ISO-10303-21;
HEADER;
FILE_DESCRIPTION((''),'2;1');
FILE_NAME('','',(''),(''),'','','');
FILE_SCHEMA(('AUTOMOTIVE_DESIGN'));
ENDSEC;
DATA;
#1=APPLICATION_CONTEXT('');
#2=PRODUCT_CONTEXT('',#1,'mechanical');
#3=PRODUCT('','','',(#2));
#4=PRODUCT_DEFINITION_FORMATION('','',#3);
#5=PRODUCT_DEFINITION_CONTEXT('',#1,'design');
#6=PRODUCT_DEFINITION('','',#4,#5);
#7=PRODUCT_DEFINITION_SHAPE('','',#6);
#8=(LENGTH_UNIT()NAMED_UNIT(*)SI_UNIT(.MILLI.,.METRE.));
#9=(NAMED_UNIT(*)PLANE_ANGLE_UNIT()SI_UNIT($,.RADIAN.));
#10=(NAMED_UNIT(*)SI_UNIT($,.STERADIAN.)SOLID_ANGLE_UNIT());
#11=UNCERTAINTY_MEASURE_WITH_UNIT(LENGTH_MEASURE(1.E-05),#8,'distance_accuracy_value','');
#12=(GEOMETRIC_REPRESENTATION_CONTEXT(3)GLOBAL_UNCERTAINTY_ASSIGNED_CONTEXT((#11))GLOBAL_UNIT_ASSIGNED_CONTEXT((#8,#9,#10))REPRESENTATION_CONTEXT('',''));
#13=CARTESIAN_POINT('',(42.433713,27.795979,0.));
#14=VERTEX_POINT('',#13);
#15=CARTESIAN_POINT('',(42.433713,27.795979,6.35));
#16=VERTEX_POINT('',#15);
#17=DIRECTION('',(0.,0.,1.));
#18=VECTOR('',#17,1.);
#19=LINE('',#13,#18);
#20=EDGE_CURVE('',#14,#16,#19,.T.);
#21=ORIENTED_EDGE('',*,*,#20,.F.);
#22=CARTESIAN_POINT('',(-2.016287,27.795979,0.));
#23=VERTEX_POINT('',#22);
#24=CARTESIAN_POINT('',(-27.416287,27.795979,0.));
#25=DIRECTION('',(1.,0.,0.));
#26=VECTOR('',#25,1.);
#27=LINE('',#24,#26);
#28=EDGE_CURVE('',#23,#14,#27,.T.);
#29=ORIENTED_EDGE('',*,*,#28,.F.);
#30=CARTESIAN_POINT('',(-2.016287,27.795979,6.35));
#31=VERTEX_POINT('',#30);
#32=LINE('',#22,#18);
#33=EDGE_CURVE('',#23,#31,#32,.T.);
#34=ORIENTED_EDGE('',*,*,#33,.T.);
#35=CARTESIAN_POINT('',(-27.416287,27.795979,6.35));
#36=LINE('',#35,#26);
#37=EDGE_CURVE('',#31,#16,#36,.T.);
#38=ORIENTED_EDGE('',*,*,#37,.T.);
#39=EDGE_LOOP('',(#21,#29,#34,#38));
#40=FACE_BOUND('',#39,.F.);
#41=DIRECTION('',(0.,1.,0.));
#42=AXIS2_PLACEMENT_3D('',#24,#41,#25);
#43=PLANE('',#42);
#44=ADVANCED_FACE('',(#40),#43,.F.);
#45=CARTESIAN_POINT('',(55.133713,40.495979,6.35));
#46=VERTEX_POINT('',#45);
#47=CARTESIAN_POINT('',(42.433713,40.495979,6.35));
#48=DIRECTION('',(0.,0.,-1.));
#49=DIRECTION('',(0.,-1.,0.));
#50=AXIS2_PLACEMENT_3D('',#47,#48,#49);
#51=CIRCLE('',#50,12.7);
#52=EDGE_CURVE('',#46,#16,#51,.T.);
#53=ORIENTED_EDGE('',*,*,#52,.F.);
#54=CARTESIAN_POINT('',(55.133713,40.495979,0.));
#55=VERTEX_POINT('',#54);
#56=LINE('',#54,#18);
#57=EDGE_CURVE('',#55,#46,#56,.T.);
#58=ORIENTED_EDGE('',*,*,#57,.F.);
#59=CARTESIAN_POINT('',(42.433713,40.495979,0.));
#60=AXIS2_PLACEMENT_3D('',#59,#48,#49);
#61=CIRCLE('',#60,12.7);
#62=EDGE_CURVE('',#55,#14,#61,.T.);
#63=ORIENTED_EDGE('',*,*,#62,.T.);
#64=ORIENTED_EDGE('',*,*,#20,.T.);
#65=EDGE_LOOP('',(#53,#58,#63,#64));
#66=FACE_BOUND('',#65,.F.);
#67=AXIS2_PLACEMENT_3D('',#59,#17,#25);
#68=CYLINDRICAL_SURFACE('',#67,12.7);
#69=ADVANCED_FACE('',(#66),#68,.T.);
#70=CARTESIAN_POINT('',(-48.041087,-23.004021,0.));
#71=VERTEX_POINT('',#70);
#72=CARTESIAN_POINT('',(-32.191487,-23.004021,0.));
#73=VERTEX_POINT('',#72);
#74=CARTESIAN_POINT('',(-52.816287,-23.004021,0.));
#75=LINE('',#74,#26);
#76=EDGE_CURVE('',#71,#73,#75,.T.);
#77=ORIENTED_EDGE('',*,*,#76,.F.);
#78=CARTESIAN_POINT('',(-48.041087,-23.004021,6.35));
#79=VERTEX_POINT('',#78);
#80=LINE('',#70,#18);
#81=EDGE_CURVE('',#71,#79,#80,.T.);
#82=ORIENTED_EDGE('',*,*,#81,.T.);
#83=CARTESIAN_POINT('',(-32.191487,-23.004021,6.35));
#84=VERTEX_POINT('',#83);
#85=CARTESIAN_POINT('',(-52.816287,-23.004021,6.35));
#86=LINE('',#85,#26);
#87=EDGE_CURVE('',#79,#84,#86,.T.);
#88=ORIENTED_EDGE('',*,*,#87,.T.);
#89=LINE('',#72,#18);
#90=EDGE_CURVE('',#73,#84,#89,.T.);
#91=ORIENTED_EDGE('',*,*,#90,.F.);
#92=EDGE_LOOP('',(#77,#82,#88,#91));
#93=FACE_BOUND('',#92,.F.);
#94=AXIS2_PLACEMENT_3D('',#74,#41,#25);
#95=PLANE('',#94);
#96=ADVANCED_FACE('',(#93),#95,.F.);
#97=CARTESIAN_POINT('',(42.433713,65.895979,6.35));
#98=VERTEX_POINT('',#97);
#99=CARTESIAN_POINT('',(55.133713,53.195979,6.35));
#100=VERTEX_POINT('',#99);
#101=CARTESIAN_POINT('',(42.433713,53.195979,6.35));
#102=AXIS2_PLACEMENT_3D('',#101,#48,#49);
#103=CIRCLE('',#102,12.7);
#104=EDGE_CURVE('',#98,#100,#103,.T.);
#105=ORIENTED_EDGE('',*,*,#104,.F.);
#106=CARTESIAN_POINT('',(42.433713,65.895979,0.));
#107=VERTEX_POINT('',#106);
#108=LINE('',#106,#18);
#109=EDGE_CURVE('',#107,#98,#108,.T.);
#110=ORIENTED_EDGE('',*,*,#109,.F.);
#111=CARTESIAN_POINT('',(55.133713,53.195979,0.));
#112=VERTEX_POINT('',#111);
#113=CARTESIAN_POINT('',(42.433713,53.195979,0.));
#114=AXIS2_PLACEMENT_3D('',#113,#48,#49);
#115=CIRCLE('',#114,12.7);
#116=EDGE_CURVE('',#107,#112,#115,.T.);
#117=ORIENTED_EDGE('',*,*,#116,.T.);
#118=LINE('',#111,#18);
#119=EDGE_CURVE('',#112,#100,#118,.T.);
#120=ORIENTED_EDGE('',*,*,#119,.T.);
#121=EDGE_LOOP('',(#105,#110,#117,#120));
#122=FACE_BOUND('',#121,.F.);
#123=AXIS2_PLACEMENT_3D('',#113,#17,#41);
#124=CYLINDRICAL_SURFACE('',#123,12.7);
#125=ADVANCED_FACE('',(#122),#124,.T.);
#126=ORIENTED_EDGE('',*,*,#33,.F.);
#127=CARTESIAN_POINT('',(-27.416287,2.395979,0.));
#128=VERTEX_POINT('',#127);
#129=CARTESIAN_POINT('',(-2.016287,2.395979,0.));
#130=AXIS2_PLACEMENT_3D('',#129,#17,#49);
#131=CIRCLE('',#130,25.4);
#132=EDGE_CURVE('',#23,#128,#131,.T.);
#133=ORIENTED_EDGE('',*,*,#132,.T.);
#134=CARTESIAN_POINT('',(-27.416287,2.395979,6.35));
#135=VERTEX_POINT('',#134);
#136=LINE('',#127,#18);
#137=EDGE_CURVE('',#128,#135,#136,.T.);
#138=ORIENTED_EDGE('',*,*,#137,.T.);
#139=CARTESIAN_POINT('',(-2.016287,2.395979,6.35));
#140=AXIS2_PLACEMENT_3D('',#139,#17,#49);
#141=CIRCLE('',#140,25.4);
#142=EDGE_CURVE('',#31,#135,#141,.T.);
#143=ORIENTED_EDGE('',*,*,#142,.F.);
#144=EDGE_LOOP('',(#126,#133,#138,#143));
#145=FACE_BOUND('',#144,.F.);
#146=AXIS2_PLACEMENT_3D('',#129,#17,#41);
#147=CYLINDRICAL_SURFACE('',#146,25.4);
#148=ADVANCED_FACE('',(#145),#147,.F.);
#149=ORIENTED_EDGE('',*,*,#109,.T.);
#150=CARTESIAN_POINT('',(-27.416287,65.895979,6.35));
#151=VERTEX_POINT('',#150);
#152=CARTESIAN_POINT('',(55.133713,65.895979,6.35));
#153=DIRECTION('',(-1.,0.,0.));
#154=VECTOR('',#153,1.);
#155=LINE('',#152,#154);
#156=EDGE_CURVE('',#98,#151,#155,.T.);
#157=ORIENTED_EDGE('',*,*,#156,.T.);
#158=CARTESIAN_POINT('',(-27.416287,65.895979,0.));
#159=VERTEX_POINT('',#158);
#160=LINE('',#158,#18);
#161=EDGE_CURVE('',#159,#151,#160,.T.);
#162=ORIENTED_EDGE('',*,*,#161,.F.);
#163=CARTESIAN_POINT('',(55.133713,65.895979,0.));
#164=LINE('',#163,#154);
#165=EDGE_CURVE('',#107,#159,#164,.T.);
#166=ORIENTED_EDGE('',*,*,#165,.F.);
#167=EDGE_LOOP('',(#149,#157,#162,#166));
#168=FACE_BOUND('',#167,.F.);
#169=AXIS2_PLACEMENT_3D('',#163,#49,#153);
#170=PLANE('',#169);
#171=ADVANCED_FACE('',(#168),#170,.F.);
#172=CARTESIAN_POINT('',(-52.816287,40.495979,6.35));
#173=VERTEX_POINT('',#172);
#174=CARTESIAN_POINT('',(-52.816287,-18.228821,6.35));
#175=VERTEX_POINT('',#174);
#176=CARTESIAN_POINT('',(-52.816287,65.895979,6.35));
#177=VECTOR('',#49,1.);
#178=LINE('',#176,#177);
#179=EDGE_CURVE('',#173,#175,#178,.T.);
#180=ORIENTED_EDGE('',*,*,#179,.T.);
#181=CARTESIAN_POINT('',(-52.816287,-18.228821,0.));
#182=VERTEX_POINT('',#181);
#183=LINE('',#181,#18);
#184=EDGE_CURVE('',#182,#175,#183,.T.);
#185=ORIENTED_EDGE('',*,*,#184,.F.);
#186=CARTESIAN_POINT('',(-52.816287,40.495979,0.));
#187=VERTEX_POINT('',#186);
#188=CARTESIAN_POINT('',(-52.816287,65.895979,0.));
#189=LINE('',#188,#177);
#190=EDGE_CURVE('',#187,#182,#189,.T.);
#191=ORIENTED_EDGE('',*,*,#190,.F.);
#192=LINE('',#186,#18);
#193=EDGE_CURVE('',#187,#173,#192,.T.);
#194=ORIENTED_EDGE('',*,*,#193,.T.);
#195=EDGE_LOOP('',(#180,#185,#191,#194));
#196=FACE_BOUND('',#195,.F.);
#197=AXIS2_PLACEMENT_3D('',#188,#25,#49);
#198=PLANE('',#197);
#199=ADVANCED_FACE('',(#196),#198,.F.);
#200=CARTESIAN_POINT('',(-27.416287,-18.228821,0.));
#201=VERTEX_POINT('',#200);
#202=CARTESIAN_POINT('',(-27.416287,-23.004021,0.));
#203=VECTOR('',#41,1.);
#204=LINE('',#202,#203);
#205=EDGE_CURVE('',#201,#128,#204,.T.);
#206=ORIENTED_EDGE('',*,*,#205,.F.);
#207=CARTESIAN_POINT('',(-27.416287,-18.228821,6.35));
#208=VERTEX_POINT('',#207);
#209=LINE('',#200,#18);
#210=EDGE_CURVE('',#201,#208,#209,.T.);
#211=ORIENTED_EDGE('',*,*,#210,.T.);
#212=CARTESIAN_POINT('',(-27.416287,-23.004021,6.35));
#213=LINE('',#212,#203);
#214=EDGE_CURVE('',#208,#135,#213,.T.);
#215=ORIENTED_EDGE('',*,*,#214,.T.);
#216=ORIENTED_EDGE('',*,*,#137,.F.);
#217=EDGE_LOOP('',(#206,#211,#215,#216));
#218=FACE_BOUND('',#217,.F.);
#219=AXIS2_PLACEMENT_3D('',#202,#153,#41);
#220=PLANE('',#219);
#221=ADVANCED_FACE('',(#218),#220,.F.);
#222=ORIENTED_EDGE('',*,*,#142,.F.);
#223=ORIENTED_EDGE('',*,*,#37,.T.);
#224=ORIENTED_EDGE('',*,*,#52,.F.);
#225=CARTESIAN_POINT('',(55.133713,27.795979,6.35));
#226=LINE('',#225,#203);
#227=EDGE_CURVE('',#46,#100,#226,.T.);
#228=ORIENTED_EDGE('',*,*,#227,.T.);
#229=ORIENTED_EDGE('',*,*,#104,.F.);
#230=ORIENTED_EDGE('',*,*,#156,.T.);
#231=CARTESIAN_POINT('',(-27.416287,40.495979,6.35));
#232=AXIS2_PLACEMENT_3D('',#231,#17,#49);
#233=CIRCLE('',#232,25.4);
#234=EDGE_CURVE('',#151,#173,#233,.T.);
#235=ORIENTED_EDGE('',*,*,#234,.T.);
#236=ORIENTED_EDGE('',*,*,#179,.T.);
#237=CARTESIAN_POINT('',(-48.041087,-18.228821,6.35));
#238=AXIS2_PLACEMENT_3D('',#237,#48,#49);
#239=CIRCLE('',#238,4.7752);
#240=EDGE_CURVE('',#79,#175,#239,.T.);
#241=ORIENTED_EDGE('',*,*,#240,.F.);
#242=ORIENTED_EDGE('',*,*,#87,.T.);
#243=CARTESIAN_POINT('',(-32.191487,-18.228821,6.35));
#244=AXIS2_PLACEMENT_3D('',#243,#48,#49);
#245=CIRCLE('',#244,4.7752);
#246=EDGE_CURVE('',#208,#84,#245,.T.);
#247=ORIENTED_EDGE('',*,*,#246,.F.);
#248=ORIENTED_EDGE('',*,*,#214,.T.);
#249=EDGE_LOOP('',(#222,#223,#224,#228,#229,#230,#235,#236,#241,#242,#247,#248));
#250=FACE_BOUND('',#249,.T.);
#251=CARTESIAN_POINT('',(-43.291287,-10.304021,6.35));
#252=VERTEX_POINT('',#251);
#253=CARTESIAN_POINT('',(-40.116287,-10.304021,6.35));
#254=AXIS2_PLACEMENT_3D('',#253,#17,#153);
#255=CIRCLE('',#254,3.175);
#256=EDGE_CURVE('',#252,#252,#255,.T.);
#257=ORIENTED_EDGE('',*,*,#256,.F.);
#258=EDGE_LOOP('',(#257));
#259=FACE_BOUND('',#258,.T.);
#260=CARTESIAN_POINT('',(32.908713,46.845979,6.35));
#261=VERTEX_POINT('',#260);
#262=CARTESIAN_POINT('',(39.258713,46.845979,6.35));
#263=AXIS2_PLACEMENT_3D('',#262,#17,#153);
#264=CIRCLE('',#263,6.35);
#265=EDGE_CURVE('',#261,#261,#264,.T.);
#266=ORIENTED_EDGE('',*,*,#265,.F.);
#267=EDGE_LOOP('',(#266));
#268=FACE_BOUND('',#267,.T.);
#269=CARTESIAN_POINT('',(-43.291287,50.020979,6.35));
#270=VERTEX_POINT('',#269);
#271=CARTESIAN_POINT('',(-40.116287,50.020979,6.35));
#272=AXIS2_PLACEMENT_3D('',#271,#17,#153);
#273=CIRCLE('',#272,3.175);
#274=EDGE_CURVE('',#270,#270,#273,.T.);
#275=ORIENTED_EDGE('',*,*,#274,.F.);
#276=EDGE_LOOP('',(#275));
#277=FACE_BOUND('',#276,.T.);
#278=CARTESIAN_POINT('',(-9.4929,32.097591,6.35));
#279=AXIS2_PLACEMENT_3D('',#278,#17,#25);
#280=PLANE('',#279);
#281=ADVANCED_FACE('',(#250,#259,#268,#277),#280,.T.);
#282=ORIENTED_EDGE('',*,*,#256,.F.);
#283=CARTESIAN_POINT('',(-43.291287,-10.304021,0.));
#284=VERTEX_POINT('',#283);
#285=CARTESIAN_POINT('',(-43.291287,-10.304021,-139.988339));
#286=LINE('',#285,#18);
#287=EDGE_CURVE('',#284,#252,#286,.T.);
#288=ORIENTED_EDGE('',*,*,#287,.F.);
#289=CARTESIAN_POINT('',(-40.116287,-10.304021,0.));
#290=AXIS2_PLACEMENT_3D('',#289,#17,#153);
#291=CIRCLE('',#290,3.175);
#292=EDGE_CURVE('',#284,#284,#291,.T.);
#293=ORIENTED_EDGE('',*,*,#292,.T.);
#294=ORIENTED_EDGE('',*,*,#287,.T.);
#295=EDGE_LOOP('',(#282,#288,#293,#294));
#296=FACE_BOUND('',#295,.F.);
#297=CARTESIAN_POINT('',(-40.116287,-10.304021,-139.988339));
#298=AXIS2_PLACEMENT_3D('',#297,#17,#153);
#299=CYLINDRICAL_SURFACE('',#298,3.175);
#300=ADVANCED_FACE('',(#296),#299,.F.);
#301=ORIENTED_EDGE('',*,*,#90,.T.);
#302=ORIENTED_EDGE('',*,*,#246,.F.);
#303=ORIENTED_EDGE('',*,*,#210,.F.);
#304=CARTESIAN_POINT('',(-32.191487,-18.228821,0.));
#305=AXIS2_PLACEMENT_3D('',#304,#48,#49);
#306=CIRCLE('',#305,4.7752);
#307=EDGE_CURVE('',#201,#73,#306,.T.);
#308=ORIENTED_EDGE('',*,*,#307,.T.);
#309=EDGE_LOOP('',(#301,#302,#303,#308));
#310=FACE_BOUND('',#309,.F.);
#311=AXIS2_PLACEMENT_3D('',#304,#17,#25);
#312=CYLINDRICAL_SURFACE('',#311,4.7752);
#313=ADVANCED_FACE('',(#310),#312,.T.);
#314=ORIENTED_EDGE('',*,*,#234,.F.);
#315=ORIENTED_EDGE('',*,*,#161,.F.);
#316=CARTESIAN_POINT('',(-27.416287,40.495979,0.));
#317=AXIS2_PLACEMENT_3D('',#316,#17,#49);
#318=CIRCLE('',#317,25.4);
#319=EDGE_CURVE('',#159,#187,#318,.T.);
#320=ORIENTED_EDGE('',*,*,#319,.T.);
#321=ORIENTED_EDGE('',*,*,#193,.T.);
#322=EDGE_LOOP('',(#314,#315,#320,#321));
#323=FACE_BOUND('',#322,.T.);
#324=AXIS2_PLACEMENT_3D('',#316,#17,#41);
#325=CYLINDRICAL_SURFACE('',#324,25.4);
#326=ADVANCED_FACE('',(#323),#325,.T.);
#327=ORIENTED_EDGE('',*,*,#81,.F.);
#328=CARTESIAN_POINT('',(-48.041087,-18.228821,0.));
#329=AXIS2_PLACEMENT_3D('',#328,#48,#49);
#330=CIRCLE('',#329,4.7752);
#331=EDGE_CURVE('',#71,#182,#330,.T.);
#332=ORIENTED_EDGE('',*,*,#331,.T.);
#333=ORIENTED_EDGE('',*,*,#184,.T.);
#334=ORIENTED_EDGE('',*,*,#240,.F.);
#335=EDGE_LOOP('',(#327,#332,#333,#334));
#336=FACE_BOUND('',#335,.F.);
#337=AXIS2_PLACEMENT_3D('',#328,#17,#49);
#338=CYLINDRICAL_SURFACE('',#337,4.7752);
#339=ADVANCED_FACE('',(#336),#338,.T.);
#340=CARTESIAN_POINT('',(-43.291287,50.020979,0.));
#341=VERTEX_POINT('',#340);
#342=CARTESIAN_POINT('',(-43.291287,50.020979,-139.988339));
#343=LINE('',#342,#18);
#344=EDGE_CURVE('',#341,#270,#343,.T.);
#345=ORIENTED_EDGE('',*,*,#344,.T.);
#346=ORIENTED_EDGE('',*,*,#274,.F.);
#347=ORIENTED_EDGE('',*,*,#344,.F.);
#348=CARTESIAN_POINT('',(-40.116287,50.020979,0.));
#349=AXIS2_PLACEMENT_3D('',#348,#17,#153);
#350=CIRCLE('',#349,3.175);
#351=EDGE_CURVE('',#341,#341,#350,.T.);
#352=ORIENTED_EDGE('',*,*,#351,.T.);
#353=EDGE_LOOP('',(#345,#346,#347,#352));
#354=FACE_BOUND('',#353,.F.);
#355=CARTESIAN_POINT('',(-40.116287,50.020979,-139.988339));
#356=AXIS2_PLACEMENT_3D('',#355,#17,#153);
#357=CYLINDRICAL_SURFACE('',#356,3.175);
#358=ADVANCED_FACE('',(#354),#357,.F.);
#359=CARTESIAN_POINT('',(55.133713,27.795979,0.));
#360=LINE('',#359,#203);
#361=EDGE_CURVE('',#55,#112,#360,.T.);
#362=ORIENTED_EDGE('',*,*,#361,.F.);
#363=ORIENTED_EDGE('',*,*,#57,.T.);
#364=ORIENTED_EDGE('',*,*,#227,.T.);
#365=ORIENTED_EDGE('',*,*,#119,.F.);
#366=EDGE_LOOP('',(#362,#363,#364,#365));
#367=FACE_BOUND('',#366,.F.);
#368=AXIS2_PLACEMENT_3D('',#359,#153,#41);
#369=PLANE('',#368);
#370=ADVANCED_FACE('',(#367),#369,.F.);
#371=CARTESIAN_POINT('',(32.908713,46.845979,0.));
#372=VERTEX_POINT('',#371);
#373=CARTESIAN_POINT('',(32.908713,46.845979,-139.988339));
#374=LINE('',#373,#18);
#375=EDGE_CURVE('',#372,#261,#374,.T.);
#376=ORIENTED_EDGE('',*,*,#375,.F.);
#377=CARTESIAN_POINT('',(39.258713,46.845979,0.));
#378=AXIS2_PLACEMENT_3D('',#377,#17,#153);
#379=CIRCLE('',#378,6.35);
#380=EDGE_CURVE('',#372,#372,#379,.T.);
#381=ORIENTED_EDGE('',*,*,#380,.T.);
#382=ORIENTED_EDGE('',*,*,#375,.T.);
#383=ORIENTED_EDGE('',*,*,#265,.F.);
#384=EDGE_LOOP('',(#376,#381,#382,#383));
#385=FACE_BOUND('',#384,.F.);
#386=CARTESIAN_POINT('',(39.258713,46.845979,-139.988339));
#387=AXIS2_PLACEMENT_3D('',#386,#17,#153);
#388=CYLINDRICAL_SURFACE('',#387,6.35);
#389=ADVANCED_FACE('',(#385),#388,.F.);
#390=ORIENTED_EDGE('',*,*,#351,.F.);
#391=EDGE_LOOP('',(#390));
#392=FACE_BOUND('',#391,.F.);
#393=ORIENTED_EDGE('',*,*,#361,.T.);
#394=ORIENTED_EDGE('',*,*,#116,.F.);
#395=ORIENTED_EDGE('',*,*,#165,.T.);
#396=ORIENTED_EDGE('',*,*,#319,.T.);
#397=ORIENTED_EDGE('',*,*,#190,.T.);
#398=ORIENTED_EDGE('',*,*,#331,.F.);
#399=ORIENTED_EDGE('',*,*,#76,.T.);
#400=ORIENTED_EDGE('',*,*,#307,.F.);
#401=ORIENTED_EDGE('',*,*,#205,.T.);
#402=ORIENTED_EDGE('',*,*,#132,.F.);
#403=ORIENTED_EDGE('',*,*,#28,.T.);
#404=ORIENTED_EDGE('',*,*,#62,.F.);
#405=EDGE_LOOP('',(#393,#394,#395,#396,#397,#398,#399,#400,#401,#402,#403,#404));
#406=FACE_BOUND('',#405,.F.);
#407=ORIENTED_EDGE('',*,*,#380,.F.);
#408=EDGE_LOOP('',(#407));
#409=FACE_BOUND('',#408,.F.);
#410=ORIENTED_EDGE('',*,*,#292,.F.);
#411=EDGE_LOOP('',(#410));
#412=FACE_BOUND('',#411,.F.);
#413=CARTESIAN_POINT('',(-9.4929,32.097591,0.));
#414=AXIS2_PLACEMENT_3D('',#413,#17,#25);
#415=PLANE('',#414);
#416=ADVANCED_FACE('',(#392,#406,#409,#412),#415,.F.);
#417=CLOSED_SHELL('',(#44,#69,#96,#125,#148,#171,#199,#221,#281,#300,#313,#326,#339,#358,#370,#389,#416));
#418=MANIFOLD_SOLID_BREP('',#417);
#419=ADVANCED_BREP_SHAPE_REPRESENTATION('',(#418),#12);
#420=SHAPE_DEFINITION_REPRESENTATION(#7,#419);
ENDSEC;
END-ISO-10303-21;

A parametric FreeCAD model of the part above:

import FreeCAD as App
import Part
import Sketcher
Q = App.Units.Quantity


def edges_at(feature, points):
    """Names of the edges that pass closest to the given points."""
    edges = feature.Shape.Edges
    near = lambda p: min(range(len(edges)), key=lambda i: edges[i].distToShape(Part.Vertex(*p))[0])
    return sorted({f"Edge{near(p) + 1}" for p in points})


def add_polygon(sketch, points):
    """Adds a closed chain of lines whose ends are joined by coincident constraints."""
    first, n = sketch.GeometryCount, len(points)
    for a, b in zip(points, points[1:] + points[:1]):
        sketch.addGeometry(Part.LineSegment(App.Vector(*a, 0), App.Vector(*b, 0)), False)
    for i in range(n):
        sketch.addConstraint(Sketcher.Constraint("Coincident", first + i, 2, first + (i + 1) % n, 1))

doc = App.newDocument("Part")
params = doc.addObject("Spreadsheet::Sheet", "Params")
for row, (alias, value) in enumerate([
    ("sketch1_width", "1 in"),
    ("sketch1_height", "2 in"),
    ("sketch1_height2", "3.5 in"),
    ("sketch1_width2", "4.25 in"),
    ("pad1_length", "0.25 in"),
    ("fillet_radius", "1 in"),
    ("fillet2_radius", "0.5 in"),
    ("fillet3_radius", "1 in"),
    ("fillet4_radius", "0.188 in"),
    ("sketch2_diameter", "0.5 in"),
    ("hole_diameter", "0.5 in"),
    ("sketch3_diameter", "0.25 in"),
    ("hole2_diameter", "0.25 in"),
    ("sketch4_diameter", "0.25 in"),
    ("hole3_diameter", "0.25 in"),
], start=1):
    params.set(f"A{row}", alias)
    params.set(f"B{row}", "=" + value)
    params.setAlias(f"B{row}", alias)

body = doc.addObject("PartDesign::Body", "Body")

sketch1 = body.newObject("Sketcher::SketchObject", "Sketch")
sketch1.AttachmentSupport = (doc.getObject("XY_Plane"), [""])
sketch1.MapMode = "FlatFace"
add_polygon(sketch1, [(55, 66), (-53, 66), (-53, -23), (-27, -23), (-27, 28), (55, 28)])
sketch1.addConstraint(Sketcher.Constraint("Horizontal", 0))
sketch1.addConstraint(Sketcher.Constraint("Vertical", 1))
sketch1.addConstraint(Sketcher.Constraint("Horizontal", 2))
sketch1.addConstraint(Sketcher.Constraint("Vertical", 3))
sketch1.addConstraint(Sketcher.Constraint("Horizontal", 4))
sketch1.addConstraint(Sketcher.Constraint("Vertical", 5))
sketch1.addConstraint(Sketcher.Constraint("DistanceX", 2, 1, 2, 2, Q("1 in")))
sketch1.addConstraint(Sketcher.Constraint("DistanceY", 3, 1, 3, 2, Q("2 in")))
sketch1.addConstraint(Sketcher.Constraint("DistanceY", 1, 2, 1, 1, Q("3.5 in")))
sketch1.addConstraint(Sketcher.Constraint("DistanceX", 0, 2, 0, 1, Q("4.25 in")))
sketch1.addConstraint(Sketcher.Constraint("DistanceY", -1, 1, 0, 2, Q("65.895979 mm")))
sketch1.addConstraint(Sketcher.Constraint("DistanceX", 0, 2, -1, 1, Q("52.816287 mm")))
sketch1.setExpression("Constraints[12]", "Params.sketch1_width")
sketch1.setExpression("Constraints[13]", "Params.sketch1_height")
sketch1.setExpression("Constraints[14]", "Params.sketch1_height2")
sketch1.setExpression("Constraints[15]", "Params.sketch1_width2")
pad1 = body.newObject("PartDesign::Pad", "Pad")
pad1.Profile = sketch1
pad1.setExpression("Length", "Params.pad1_length")
doc.recompute()

fillet = body.newObject("PartDesign::Fillet", "Fillet")
fillet.Base = (pad1, edges_at(pad1, [(-52.816, 65.896, 3.175)]))
fillet.setExpression("Radius", "Params.fillet_radius")
doc.recompute()

fillet2 = body.newObject("PartDesign::Fillet", "Fillet001")
fillet2.Base = (fillet, edges_at(fillet, [(55.134, 65.896, 3.175), (55.134, 27.796, 3.175)]))
fillet2.setExpression("Radius", "Params.fillet2_radius")
doc.recompute()

fillet3 = body.newObject("PartDesign::Fillet", "Fillet002")
fillet3.Base = (fillet2, edges_at(fillet2, [(-27.416, 27.796, 3.175)]))
fillet3.setExpression("Radius", "Params.fillet3_radius")
doc.recompute()

fillet4 = body.newObject("PartDesign::Fillet", "Fillet003")
fillet4.Base = (fillet3, edges_at(fillet3, [(-27.416, -23.004, 3.175), (-52.816, -23.004, 3.175)]))
fillet4.setExpression("Radius", "Params.fillet4_radius")

sketch2 = body.newObject("Sketcher::SketchObject", "Sketch001")
sketch2.AttachmentSupport = (doc.getObject("XY_Plane"), [""])
sketch2.MapMode = "FlatFace"
sketch2.addGeometry(Part.Circle(App.Vector(39, 47, 0), App.Vector(0, 0, 1), 6), False)
sketch2.addConstraint(Sketcher.Constraint("Diameter", 0, Q("0.5 in")))
sketch2.addConstraint(Sketcher.Constraint("DistanceY", -1, 1, 0, 3, Q("46.845979 mm")))
sketch2.addConstraint(Sketcher.Constraint("DistanceX", -1, 1, 0, 3, Q("39.258713 mm")))
sketch2.setExpression("Constraints[0]", "Params.sketch2_diameter")
doc.recompute()
hole = body.newObject("PartDesign::Hole", "Hole")
hole.Profile = sketch2
hole.ThreadType = "None"
hole.setExpression("Diameter", "Params.hole_diameter")
hole.DepthType = "ThroughAll"
hole.Reversed = True

sketch3 = body.newObject("Sketcher::SketchObject", "Sketch002")
sketch3.AttachmentSupport = (doc.getObject("XY_Plane"), [""])
sketch3.MapMode = "FlatFace"
sketch3.addGeometry(Part.Circle(App.Vector(-40.1, -10.3, 0), App.Vector(0, 0, 1), 3.2), False)
sketch3.addConstraint(Sketcher.Constraint("Diameter", 0, Q("0.25 in")))
sketch3.addConstraint(Sketcher.Constraint("DistanceY", 0, 3, -1, 1, Q("10.304021 mm")))
sketch3.addConstraint(Sketcher.Constraint("DistanceX", 0, 3, -1, 1, Q("40.116287 mm")))
sketch3.setExpression("Constraints[0]", "Params.sketch3_diameter")
doc.recompute()
hole2 = body.newObject("PartDesign::Hole", "Hole001")
hole2.Profile = sketch3
hole2.ThreadType = "None"
hole2.setExpression("Diameter", "Params.hole2_diameter")
hole2.DepthType = "ThroughAll"
hole2.Reversed = True

sketch4 = body.newObject("Sketcher::SketchObject", "Sketch003")
sketch4.AttachmentSupport = (doc.getObject("XY_Plane"), [""])
sketch4.MapMode = "FlatFace"
sketch4.addGeometry(Part.Circle(App.Vector(-40.1, 50, 0), App.Vector(0, 0, 1), 3.2), False)
sketch4.addConstraint(Sketcher.Constraint("Diameter", 0, Q("0.25 in")))
sketch4.addConstraint(Sketcher.Constraint("DistanceY", -1, 1, 0, 3, Q("50.020979 mm")))
sketch4.addConstraint(Sketcher.Constraint("DistanceX", 0, 3, -1, 1, Q("40.116287 mm")))
sketch4.setExpression("Constraints[0]", "Params.sketch4_diameter")
doc.recompute()
hole3 = body.newObject("PartDesign::Hole", "Hole002")
hole3.Profile = sketch4
hole3.ThreadType = "None"
hole3.setExpression("Diameter", "Params.hole3_diameter")
hole3.DepthType = "ThroughAll"
hole3.Reversed = True

doc.recompute()
